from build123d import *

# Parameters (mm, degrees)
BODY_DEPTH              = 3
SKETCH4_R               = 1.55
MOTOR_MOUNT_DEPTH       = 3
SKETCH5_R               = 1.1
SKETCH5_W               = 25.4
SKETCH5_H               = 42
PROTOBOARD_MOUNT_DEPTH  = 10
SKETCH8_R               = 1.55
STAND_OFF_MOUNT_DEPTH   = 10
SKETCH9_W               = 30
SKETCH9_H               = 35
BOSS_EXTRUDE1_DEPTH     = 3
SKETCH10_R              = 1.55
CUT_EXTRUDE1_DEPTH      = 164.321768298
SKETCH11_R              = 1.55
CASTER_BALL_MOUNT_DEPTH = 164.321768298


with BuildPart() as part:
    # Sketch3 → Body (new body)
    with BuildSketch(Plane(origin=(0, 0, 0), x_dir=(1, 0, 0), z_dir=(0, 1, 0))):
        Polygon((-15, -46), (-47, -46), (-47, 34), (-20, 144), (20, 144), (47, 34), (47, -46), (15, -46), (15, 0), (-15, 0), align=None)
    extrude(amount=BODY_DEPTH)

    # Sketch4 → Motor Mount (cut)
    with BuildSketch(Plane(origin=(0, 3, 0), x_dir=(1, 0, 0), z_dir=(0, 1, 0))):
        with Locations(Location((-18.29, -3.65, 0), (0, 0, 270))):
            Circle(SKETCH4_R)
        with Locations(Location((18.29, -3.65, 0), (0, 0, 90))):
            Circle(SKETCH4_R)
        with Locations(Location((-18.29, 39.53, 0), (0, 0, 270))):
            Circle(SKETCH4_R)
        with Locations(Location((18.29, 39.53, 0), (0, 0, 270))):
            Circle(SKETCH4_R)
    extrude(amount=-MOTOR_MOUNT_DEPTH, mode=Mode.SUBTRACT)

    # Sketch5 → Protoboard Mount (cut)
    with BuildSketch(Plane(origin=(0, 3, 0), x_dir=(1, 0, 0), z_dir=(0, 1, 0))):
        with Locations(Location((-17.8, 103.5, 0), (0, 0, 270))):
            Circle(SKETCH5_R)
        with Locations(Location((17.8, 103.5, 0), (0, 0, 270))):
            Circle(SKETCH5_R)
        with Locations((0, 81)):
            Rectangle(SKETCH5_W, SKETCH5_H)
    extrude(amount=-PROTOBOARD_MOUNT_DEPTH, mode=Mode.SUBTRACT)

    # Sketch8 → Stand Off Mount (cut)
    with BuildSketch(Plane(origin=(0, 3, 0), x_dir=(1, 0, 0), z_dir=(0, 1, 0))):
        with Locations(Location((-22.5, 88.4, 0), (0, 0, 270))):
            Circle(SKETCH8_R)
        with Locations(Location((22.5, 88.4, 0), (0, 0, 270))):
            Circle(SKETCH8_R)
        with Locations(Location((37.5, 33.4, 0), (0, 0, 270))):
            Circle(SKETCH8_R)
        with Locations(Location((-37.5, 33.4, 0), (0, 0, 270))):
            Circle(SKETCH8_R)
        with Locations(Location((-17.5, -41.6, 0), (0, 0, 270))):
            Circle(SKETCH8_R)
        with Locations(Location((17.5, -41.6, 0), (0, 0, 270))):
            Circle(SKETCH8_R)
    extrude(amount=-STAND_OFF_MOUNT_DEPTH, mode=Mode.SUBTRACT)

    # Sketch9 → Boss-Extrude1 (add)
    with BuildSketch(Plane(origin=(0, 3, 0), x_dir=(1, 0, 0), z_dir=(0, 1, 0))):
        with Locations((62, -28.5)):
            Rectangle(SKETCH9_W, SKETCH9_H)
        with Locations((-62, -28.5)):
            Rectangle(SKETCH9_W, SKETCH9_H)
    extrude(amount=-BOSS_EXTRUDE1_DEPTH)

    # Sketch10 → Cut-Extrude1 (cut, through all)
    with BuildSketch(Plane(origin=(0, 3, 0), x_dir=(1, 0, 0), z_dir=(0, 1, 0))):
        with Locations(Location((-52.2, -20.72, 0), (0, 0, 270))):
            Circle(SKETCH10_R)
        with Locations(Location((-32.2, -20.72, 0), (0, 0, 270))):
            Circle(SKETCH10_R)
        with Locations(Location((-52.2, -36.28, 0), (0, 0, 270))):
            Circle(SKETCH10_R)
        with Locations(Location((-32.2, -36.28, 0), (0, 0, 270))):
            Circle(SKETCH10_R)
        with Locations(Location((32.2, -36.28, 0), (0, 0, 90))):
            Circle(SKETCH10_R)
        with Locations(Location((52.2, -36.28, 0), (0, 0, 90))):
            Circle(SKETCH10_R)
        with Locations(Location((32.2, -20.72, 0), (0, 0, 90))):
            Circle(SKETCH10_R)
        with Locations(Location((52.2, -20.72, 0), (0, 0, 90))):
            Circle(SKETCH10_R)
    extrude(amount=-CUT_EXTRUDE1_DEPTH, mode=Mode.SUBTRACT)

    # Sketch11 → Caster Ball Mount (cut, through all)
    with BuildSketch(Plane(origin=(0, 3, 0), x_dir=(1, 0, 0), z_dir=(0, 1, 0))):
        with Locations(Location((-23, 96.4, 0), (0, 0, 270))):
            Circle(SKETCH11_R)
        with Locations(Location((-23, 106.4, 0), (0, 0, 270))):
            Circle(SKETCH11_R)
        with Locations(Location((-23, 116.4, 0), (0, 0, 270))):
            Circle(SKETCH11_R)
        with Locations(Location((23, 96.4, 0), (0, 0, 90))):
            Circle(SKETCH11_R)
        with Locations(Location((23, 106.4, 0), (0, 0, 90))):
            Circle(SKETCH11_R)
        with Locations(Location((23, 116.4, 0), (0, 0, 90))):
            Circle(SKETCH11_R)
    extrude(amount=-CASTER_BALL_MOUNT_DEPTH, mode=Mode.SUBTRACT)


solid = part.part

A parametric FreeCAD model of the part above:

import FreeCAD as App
import Part
import Sketcher

V = App.Vector

doc = App.newDocument("Part")
body = doc.addObject("PartDesign::Body", "Body")

sketch1 = doc.addObject("Sketcher::SketchObject", "Sketch")
body.addObject(sketch1)
sketch1.AttachmentSupport = (doc.XZ_Plane, [""])
sketch1.MapMode = "FlatFace"
sketch1.addGeometry(Part.LineSegment(V(-47, 46, 0), V(-15, 46, 0)), False)
sketch1.addGeometry(Part.LineSegment(V(-15, 46, 0), V(-15, 0, 0)), False)
sketch1.addGeometry(Part.LineSegment(V(-15, 0, 0), V(15, 0, 0)), False)
sketch1.addGeometry(Part.LineSegment(V(15, 0, 0), V(15, 46, 0)), False)
sketch1.addGeometry(Part.LineSegment(V(15, 46, 0), V(47, 46, 0)), False)
sketch1.addGeometry(Part.LineSegment(V(47, 46, 0), V(47, -34, 0)), False)
sketch1.addGeometry(Part.LineSegment(V(47, -34, 0), V(20, -144, 0)), False)
sketch1.addGeometry(Part.LineSegment(V(20, -144, 0), V(-20, -144, 0)), False)
sketch1.addGeometry(Part.LineSegment(V(-20, -144, 0), V(-47, -34, 0)), False)
sketch1.addGeometry(Part.LineSegment(V(-47, -34, 0), V(-47, 46, 0)), False)
sketch1.addConstraint(Sketcher.Constraint("Coincident", 0, 2, 1, 1))
sketch1.addConstraint(Sketcher.Constraint("Coincident", 1, 2, 2, 1))
sketch1.addConstraint(Sketcher.Constraint("Coincident", 2, 2, 3, 1))
sketch1.addConstraint(Sketcher.Constraint("Coincident", 3, 2, 4, 1))
sketch1.addConstraint(Sketcher.Constraint("Coincident", 4, 2, 5, 1))
sketch1.addConstraint(Sketcher.Constraint("Coincident", 5, 2, 6, 1))
sketch1.addConstraint(Sketcher.Constraint("Coincident", 6, 2, 7, 1))
sketch1.addConstraint(Sketcher.Constraint("Coincident", 7, 2, 8, 1))
sketch1.addConstraint(Sketcher.Constraint("Coincident", 8, 2, 9, 1))
sketch1.addConstraint(Sketcher.Constraint("Coincident", 9, 2, 0, 1))
sketch1.addConstraint(Sketcher.Constraint("Horizontal", 0))
sketch1.addConstraint(Sketcher.Constraint("Vertical", 1))
sketch1.addConstraint(Sketcher.Constraint("Horizontal", 2))
sketch1.addConstraint(Sketcher.Constraint("Vertical", 3))
sketch1.addConstraint(Sketcher.Constraint("Horizontal", 4))
sketch1.addConstraint(Sketcher.Constraint("Vertical", 5))
sketch1.addConstraint(Sketcher.Constraint("Horizontal", 7))
sketch1.addConstraint(Sketcher.Constraint("Vertical", 9))
sketch1.addConstraint(Sketcher.Constraint("Symmetric", 1, 2, 2, 2, -1, 1))
sketch1.addConstraint(Sketcher.Constraint("Symmetric", 5, 2, 8, 2, -2))
sketch1.addConstraint(Sketcher.Constraint("Horizontal", 0, 2, 3, 2))
sketch1.addConstraint(Sketcher.Constraint("Equal", 6, 8))
sketch1.addConstraint(Sketcher.Constraint("DistanceX", 0, 1, 0, 2, 32.0))
sketch1.addConstraint(Sketcher.Constraint("DistanceX", 2, 1, 2, 2, 30.0))
sketch1.addConstraint(Sketcher.Constraint("DistanceX", 7, 2, 7, 1, 40.0))
sketch1.addConstraint(Sketcher.Constraint("DistanceY", 1, 2, 1, 1, 46.0))
sketch1.addConstraint(Sketcher.Constraint("DistanceY", 5, 2, 5, 1, 80.0))
sketch1.addConstraint(Sketcher.Constraint("DistanceY", 6, 2, -1, 1, 144.0))
pad1 = doc.addObject("PartDesign::Pad", "Pad")
body.addObject(pad1)
pad1.Profile = sketch1
pad1.Length = 3
pad1.Reversed = True

sketch2 = doc.addObject("Sketcher::SketchObject", "Sketch001")
body.addObject(sketch2)
sketch2.AttachmentSupport = (doc.XZ_Plane, [""])
sketch2.MapMode = "FlatFace"
sketch2.AttachmentOffset = App.Placement(V(0, 0, -3), App.Rotation())
sketch2.addGeometry(Part.Circle(V(-18.3, 3.6, 0), V(0, 0, 1), 1.6), False)
sketch2.addGeometry(Part.Circle(V(18.3, 3.6, 0), V(0, 0, 1), 1.6), False)
sketch2.addGeometry(Part.Circle(V(-18.3, -39.5, 0), V(0, 0, 1), 1.6), False)
sketch2.addGeometry(Part.Circle(V(18.3, -39.5, 0), V(0, 0, 1), 1.6), False)
sketch2.addConstraint(Sketcher.Constraint("Equal", 0, 1))
sketch2.addConstraint(Sketcher.Constraint("Equal", 1, 2))
sketch2.addConstraint(Sketcher.Constraint("Equal", 2, 3))
sketch2.addConstraint(Sketcher.Constraint("Symmetric", 0, 3, 1, 3, -2))
sketch2.addConstraint(Sketcher.Constraint("Symmetric", 2, 3, 3, 3, -2))
sketch2.addConstraint(Sketcher.Constraint("Vertical", 0, 3, 2, 3))
sketch2.addConstraint(Sketcher.Constraint("Diameter", 0, 3.1))
sketch2.addConstraint(Sketcher.Constraint("DistanceX", 0, 3, -1, 1, 18.29))
sketch2.addConstraint(Sketcher.Constraint("DistanceY", -1, 1, 0, 3, 3.65))
sketch2.addConstraint(Sketcher.Constraint("DistanceY", 2, 3, -1, 1, 39.53))
pocket1 = doc.addObject("PartDesign::Pocket", "Pocket")
body.addObject(pocket1)
pocket1.Profile = sketch2
pocket1.Length = 3
pocket1.Reversed = True

sketch3 = doc.addObject("Sketcher::SketchObject", "Sketch002")
body.addObject(sketch3)
sketch3.AttachmentSupport = (doc.XZ_Plane, [""])
sketch3.MapMode = "FlatFace"
sketch3.AttachmentOffset = App.Placement(V(0, 0, -3), App.Rotation())
sketch3.addGeometry(Part.Circle(V(-17.8, -103.5, 0), V(0, 0, 1), 1.1), False)
sketch3.addGeometry(Part.Circle(V(17.8, -103.5, 0), V(0, 0, 1), 1.1), False)
sketch3.addGeometry(Part.LineSegment(V(-12.7, -102, 0), V(-12.7, -60, 0)), False)
sketch3.addGeometry(Part.LineSegment(V(-12.7, -60, 0), V(12.7, -60, 0)), False)
sketch3.addGeometry(Part.LineSegment(V(12.7, -60, 0), V(12.7, -102, 0)), False)
sketch3.addGeometry(Part.LineSegment(V(12.7, -102, 0), V(-12.7, -102, 0)), False)
sketch3.addConstraint(Sketcher.Constraint("Coincident", 2, 2, 3, 1))
sketch3.addConstraint(Sketcher.Constraint("Coincident", 3, 2, 4, 1))
sketch3.addConstraint(Sketcher.Constraint("Coincident", 4, 2, 5, 1))
sketch3.addConstraint(Sketcher.Constraint("Coincident", 5, 2, 2, 1))
sketch3.addConstraint(Sketcher.Constraint("Vertical", 2))
sketch3.addConstraint(Sketcher.Constraint("Horizontal", 3))
sketch3.addConstraint(Sketcher.Constraint("Vertical", 4))
sketch3.addConstraint(Sketcher.Constraint("Horizontal", 5))
sketch3.addConstraint(Sketcher.Constraint("Equal", 0, 1))
sketch3.addConstraint(Sketcher.Constraint("Symmetric", 0, 3, 1, 3, -2))
sketch3.addConstraint(Sketcher.Constraint("Diameter", 0, 2.2))
sketch3.addConstraint(Sketcher.Constraint("DistanceY", 2, 1, 2, 2, 42.0))
sketch3.addConstraint(Sketcher.Constraint("DistanceX", 3, 1, 3, 2, 25.4))
sketch3.addConstraint(Sketcher.Constraint("DistanceY", 2, 2, -1, 1, 60.0))
sketch3.addConstraint(Sketcher.Constraint("DistanceX", 0, 3, -1, 1, 17.8))
sketch3.addConstraint(Sketcher.Constraint("DistanceY", 0, 3, -1, 1, 103.5))
sketch3.addConstraint(Sketcher.Constraint("DistanceX", 2, 2, -1, 1, 12.7))
pocket2 = doc.addObject("PartDesign::Pocket", "Pocket001")
body.addObject(pocket2)
pocket2.Profile = sketch3
pocket2.Length = 10
pocket2.Reversed = True

sketch4 = doc.addObject("Sketcher::SketchObject", "Sketch003")
body.addObject(sketch4)
sketch4.AttachmentSupport = (doc.XZ_Plane, [""])
sketch4.MapMode = "FlatFace"
sketch4.AttachmentOffset = App.Placement(V(0, 0, -3), App.Rotation())
sketch4.addGeometry(Part.Circle(V(-22.5, -88.4, 0), V(0, 0, 1), 1.6), False)
sketch4.addGeometry(Part.Circle(V(22.5, -88.4, 0), V(0, 0, 1), 1.6), False)
sketch4.addGeometry(Part.Circle(V(37.5, -33.4, 0), V(0, 0, 1), 1.6), False)
sketch4.addGeometry(Part.Circle(V(-37.5, -33.4, 0), V(0, 0, 1), 1.6), False)
sketch4.addGeometry(Part.Circle(V(-17.5, 41.6, 0), V(0, 0, 1), 1.6), False)
sketch4.addGeometry(Part.Circle(V(17.5, 41.6, 0), V(0, 0, 1), 1.6), False)
sketch4.addConstraint(Sketcher.Constraint("Equal", 0, 1))
sketch4.addConstraint(Sketcher.Constraint("Equal", 1, 2))
sketch4.addConstraint(Sketcher.Constraint("Equal", 2, 3))
sketch4.addConstraint(Sketcher.Constraint("Equal", 3, 4))
sketch4.addConstraint(Sketcher.Constraint("Equal", 4, 5))
sketch4.addConstraint(Sketcher.Constraint("Symmetric", 0, 3, 1, 3, -2))
sketch4.addConstraint(Sketcher.Constraint("Symmetric", 2, 3, 3, 3, -2))
sketch4.addConstraint(Sketcher.Constraint("Symmetric", 4, 3, 5, 3, -2))
sketch4.addConstraint(Sketcher.Constraint("Diameter", 0, 3.1))
sketch4.addConstraint(Sketcher.Constraint("DistanceX", 0, 3, 1, 3, 45.0))
sketch4.addConstraint(Sketcher.Constraint("DistanceX", 1, 3, 2, 3, 15.0))
sketch4.addConstraint(Sketcher.Constraint("DistanceY", 1, 3, 2, 3, 55.0))
sketch4.addConstraint(Sketcher.Constraint("DistanceX", 3, 3, 4, 3, 20.0))
sketch4.addConstraint(Sketcher.Constraint("DistanceY", 3, 3, 4, 3, 75.0))
sketch4.addConstraint(Sketcher.Constraint("DistanceY", 0, 3, -1, 1, 88.4))
pocket3 = doc.addObject("PartDesign::Pocket", "Pocket002")
body.addObject(pocket3)
pocket3.Profile = sketch4
pocket3.Length = 10
pocket3.Reversed = True

sketch5 = doc.addObject("Sketcher::SketchObject", "Sketch004")
body.addObject(sketch5)
sketch5.AttachmentSupport = (doc.XZ_Plane, [""])
sketch5.MapMode = "FlatFace"
sketch5.AttachmentOffset = App.Placement(V(0, 0, -3), App.Rotation())
sketch5.addGeometry(Part.LineSegment(V(47, 11, 0), V(47, 46, 0)), False)
sketch5.addGeometry(Part.LineSegment(V(47, 46, 0), V(77, 46, 0)), False)
sketch5.addGeometry(Part.LineSegment(V(77, 46, 0), V(77, 11, 0)), False)
sketch5.addGeometry(Part.LineSegment(V(77, 11, 0), V(47, 11, 0)), False)
sketch5.addGeometry(Part.LineSegment(V(-77, 11, 0), V(-77, 46, 0)), False)
sketch5.addGeometry(Part.LineSegment(V(-77, 46, 0), V(-47, 46, 0)), False)
sketch5.addGeometry(Part.LineSegment(V(-47, 46, 0), V(-47, 11, 0)), False)
sketch5.addGeometry(Part.LineSegment(V(-47, 11, 0), V(-77, 11, 0)), False)
sketch5.addConstraint(Sketcher.Constraint("Coincident", 0, 2, 1, 1))
sketch5.addConstraint(Sketcher.Constraint("Coincident", 1, 2, 2, 1))
sketch5.addConstraint(Sketcher.Constraint("Coincident", 2, 2, 3, 1))
sketch5.addConstraint(Sketcher.Constraint("Coincident", 3, 2, 0, 1))
sketch5.addConstraint(Sketcher.Constraint("Coincident", 4, 2, 5, 1))
sketch5.addConstraint(Sketcher.Constraint("Coincident", 5, 2, 6, 1))
sketch5.addConstraint(Sketcher.Constraint("Coincident", 6, 2, 7, 1))
sketch5.addConstraint(Sketcher.Constraint("Coincident", 7, 2, 4, 1))
sketch5.addConstraint(Sketcher.Constraint("Vertical", 0))
sketch5.addConstraint(Sketcher.Constraint("Horizontal", 1))
sketch5.addConstraint(Sketcher.Constraint("Vertical", 2))
sketch5.addConstraint(Sketcher.Constraint("Horizontal", 3))
sketch5.addConstraint(Sketcher.Constraint("Vertical", 4))
sketch5.addConstraint(Sketcher.Constraint("Horizontal", 5))
sketch5.addConstraint(Sketcher.Constraint("Vertical", 6))
sketch5.addConstraint(Sketcher.Constraint("Horizontal", 7))
sketch5.addConstraint(Sketcher.Constraint("Symmetric", 1, 2, 4, 2, -2))
sketch5.addConstraint(Sketcher.Constraint("Symmetric", 3, 2, 6, 2, -2))
sketch5.addConstraint(Sketcher.Constraint("DistanceX", 1, 1, 1, 2, 30.0))
sketch5.addConstraint(Sketcher.Constraint("DistanceY", 0, 1, 0, 2, 35.0))
sketch5.addConstraint(Sketcher.Constraint("DistanceX", -1, 1, 0, 2, 47.0))
sketch5.addConstraint(Sketcher.Constraint("DistanceY", -1, 1, 0, 2, 46.0))
pad2 = doc.addObject("PartDesign::Pad", "Pad001")
body.addObject(pad2)
pad2.Profile = sketch5
pad2.Length = 3

sketch6 = doc.addObject("Sketcher::SketchObject", "Sketch005")
body.addObject(sketch6)
sketch6.AttachmentSupport = (doc.XZ_Plane, [""])
sketch6.MapMode = "FlatFace"
sketch6.AttachmentOffset = App.Placement(V(0, 0, -3), App.Rotation())
sketch6.addGeometry(Part.Circle(V(-52.2, 20.7, 0), V(0, 0, 1), 1.6), False)
sketch6.addGeometry(Part.Circle(V(-32.2, 20.7, 0), V(0, 0, 1), 1.6), False)
sketch6.addGeometry(Part.Circle(V(-52.2, 36.3, 0), V(0, 0, 1), 1.6), False)
sketch6.addGeometry(Part.Circle(V(-32.2, 36.3, 0), V(0, 0, 1), 1.6), False)
sketch6.addGeometry(Part.Circle(V(32.2, 36.3, 0), V(0, 0, 1), 1.6), False)
sketch6.addGeometry(Part.Circle(V(52.2, 36.3, 0), V(0, 0, 1), 1.6), False)
sketch6.addGeometry(Part.Circle(V(32.2, 20.7, 0), V(0, 0, 1), 1.6), False)
sketch6.addGeometry(Part.Circle(V(52.2, 20.7, 0), V(0, 0, 1), 1.6), False)
sketch6.addConstraint(Sketcher.Constraint("Equal", 0, 1))
sketch6.addConstraint(Sketcher.Constraint("Equal", 1, 2))
sketch6.addConstraint(Sketcher.Constraint("Equal", 2, 3))
sketch6.addConstraint(Sketcher.Constraint("Equal", 3, 4))
sketch6.addConstraint(Sketcher.Constraint("Equal", 4, 5))
sketch6.addConstraint(Sketcher.Constraint("Equal", 5, 6))
sketch6.addConstraint(Sketcher.Constraint("Equal", 6, 7))
sketch6.addConstraint(Sketcher.Constraint("Symmetric", 3, 3, 4, 3, -2))
sketch6.addConstraint(Sketcher.Constraint("Symmetric", 2, 3, 5, 3, -2))
sketch6.addConstraint(Sketcher.Constraint("Symmetric", 1, 3, 6, 3, -2))
sketch6.addConstraint(Sketcher.Constraint("Symmetric", 0, 3, 7, 3, -2))
sketch6.addConstraint(Sketcher.Constraint("Horizontal", 0, 3, 1, 3))
sketch6.addConstraint(Sketcher.Constraint("Horizontal", 2, 3, 3, 3))
sketch6.addConstraint(Sketcher.Constraint("Vertical", 0, 3, 2, 3))
sketch6.addConstraint(Sketcher.Constraint("Vertical", 1, 3, 3, 3))
sketch6.addConstraint(Sketcher.Constraint("Diameter", 0, 3.1))
sketch6.addConstraint(Sketcher.Constraint("DistanceX", 0, 3, 1, 3, 20.0))
sketch6.addConstraint(Sketcher.Constraint("DistanceX", 0, 3, -1, 1, 52.2))
sketch6.addConstraint(Sketcher.Constraint("DistanceY", -1, 1, 0, 3, 20.72))
sketch6.addConstraint(Sketcher.Constraint("DistanceY", -1, 1, 2, 3, 36.28))
pocket4 = doc.addObject("PartDesign::Pocket", "Pocket003")
body.addObject(pocket4)
pocket4.Profile = sketch6
pocket4.Type = "ThroughAll"
pocket4.Reversed = True

sketch7 = doc.addObject("Sketcher::SketchObject", "Sketch006")
body.addObject(sketch7)
sketch7.AttachmentSupport = (doc.XZ_Plane, [""])
sketch7.MapMode = "FlatFace"
sketch7.AttachmentOffset = App.Placement(V(0, 0, -3), App.Rotation())
sketch7.addGeometry(Part.Circle(V(-23, -96.4, 0), V(0, 0, 1), 1.6), False)
sketch7.addGeometry(Part.Circle(V(-23, -106.4, 0), V(0, 0, 1), 1.6), False)
sketch7.addGeometry(Part.Circle(V(-23, -116.4, 0), V(0, 0, 1), 1.6), False)
sketch7.addGeometry(Part.Circle(V(23, -96.4, 0), V(0, 0, 1), 1.6), False)
sketch7.addGeometry(Part.Circle(V(23, -106.4, 0), V(0, 0, 1), 1.6), False)
sketch7.addGeometry(Part.Circle(V(23, -116.4, 0), V(0, 0, 1), 1.6), False)
sketch7.addConstraint(Sketcher.Constraint("Equal", 0, 1))
sketch7.addConstraint(Sketcher.Constraint("Equal", 1, 2))
sketch7.addConstraint(Sketcher.Constraint("Equal", 2, 3))
sketch7.addConstraint(Sketcher.Constraint("Equal", 3, 4))
sketch7.addConstraint(Sketcher.Constraint("Equal", 4, 5))
sketch7.addConstraint(Sketcher.Constraint("Symmetric", 0, 3, 3, 3, -2))
sketch7.addConstraint(Sketcher.Constraint("Symmetric", 1, 3, 4, 3, -2))
sketch7.addConstraint(Sketcher.Constraint("Symmetric", 2, 3, 5, 3, -2))
sketch7.addConstraint(Sketcher.Constraint("Vertical", 0, 3, 1, 3))
sketch7.addConstraint(Sketcher.Constraint("Vertical", 1, 3, 2, 3))
sketch7.addConstraint(Sketcher.Constraint("Diameter", 0, 3.1))
sketch7.addConstraint(Sketcher.Constraint("DistanceX", 0, 3, -1, 1, 23.0))
sketch7.addConstraint(Sketcher.Constraint("DistanceY", 1, 3, 0, 3, 10.0))
sketch7.addConstraint(Sketcher.Constraint("DistanceY", 2, 3, 1, 3, 10.0))
sketch7.addConstraint(Sketcher.Constraint("DistanceY", 0, 3, -1, 1, 96.4))
pocket5 = doc.addObject("PartDesign::Pocket", "Pocket004")
body.addObject(pocket5)
pocket5.Profile = sketch7
pocket5.Type = "ThroughAll"
pocket5.Reversed = True

doc.recompute()
